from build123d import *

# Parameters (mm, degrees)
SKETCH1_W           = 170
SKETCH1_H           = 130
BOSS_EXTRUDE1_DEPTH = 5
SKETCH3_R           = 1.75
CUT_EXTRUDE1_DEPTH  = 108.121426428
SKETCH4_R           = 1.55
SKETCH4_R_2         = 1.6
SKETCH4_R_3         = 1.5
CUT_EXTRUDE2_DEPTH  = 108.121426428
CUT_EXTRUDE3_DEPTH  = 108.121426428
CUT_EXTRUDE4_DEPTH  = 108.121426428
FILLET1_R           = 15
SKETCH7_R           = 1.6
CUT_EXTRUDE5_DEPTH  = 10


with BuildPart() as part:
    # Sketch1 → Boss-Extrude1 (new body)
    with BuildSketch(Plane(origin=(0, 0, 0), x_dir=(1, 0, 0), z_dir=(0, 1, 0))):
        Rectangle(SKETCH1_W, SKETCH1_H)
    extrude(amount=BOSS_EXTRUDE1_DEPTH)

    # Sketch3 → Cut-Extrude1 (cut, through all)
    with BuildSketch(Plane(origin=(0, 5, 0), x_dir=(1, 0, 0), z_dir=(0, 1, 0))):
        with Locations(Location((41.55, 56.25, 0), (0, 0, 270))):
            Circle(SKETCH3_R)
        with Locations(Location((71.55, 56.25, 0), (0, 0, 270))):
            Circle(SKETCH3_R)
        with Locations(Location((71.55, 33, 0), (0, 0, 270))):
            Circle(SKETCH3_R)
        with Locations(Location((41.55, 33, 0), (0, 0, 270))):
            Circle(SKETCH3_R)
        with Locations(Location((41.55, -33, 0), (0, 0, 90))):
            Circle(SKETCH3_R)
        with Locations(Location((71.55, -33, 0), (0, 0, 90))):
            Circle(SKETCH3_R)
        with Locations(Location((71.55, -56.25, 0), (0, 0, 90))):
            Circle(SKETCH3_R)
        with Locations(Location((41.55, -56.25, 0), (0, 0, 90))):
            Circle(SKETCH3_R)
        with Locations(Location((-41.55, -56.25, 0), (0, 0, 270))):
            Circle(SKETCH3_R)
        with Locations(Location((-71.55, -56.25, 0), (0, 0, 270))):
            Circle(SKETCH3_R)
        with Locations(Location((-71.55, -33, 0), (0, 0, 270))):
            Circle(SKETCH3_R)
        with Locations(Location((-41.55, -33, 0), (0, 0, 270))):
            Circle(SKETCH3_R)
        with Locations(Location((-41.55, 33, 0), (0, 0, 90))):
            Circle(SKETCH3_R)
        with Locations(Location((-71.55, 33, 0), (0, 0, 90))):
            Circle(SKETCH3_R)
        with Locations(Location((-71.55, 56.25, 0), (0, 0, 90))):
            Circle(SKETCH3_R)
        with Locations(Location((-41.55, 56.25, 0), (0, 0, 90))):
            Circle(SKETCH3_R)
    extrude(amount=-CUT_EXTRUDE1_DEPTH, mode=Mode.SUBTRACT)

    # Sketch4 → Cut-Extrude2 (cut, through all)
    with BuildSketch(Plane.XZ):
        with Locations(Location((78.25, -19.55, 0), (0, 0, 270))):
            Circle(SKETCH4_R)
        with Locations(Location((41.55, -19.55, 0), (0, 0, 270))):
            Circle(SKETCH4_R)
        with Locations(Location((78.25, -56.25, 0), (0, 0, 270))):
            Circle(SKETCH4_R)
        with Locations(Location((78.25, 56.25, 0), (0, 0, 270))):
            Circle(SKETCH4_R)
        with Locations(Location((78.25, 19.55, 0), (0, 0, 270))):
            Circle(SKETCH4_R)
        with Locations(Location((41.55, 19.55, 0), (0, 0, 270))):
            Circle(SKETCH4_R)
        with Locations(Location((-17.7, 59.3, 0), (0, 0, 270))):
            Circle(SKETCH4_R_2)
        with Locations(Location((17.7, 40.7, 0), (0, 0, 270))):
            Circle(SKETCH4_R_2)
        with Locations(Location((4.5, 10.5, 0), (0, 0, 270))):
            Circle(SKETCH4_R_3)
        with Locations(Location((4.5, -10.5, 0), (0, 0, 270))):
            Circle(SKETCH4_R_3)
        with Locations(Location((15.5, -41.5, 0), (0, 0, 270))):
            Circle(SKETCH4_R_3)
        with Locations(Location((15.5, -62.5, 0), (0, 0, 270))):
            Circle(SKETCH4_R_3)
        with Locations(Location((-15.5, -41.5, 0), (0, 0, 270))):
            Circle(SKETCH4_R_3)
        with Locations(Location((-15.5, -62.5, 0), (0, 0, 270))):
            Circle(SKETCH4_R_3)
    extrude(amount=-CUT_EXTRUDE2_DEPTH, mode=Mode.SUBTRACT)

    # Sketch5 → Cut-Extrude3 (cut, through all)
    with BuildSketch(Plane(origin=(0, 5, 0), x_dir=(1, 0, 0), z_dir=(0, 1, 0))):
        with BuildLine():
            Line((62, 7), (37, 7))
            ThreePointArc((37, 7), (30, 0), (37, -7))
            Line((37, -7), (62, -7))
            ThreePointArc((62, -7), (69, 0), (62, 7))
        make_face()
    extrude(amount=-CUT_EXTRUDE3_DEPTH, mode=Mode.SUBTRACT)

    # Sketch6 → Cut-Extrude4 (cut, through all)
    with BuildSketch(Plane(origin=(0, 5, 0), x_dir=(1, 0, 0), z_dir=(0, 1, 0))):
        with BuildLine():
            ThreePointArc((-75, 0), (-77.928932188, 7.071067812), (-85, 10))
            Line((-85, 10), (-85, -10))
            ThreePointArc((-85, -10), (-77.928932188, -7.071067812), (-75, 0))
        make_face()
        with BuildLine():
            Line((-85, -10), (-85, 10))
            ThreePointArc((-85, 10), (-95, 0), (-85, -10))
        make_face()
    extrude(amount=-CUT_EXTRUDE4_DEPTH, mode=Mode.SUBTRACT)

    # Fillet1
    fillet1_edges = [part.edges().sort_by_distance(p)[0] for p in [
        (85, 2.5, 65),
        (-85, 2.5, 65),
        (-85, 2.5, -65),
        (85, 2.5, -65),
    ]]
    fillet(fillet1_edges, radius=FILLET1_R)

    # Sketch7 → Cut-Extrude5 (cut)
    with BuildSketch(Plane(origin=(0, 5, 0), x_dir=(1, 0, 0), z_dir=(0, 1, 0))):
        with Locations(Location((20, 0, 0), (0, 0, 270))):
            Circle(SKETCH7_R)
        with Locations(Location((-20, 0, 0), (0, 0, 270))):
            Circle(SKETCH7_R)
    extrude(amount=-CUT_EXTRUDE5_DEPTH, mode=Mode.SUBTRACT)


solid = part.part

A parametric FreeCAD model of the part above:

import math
import FreeCAD as App
import Part
import Sketcher
from FreeCAD import Vector


def edges_at(feature, points):
    """Names of the edges that pass closest to the given points."""
    edges = feature.Shape.Edges
    near = lambda p: min(range(len(edges)), key=lambda i: edges[i].distToShape(Part.Vertex(*p))[0])
    return sorted({f"Edge{near(p) + 1}" for p in points})


def add_polygon(sketch, points):
    """Adds a closed chain of lines whose ends are joined by coincident constraints."""
    first, n = sketch.GeometryCount, len(points)
    for a, b in zip(points, points[1:] + points[:1]):
        sketch.addGeometry(Part.LineSegment(App.Vector(*a, 0), App.Vector(*b, 0)), False)
    for i in range(n):
        sketch.addConstraint(Sketcher.Constraint("Coincident", first + i, 2, first + (i + 1) % n, 1))

doc = App.newDocument("Part")
body = doc.addObject("PartDesign::Body", "Body")

# Sketch on XZ plane
sketch1 = body.newObject("Sketcher::SketchObject", "Sketch")
sketch1.AttachmentSupport = (doc.getObject("XZ_Plane"), [""])
sketch1.MapMode = "FlatFace"
add_polygon(sketch1, [(-85, -65), (-85, 65), (85, 65), (85, -65)])  # lines 0-3
sketch1.addConstraint([
    Sketcher.Constraint("Vertical", 0),
    Sketcher.Constraint("Horizontal", 1),
    Sketcher.Constraint("Vertical", 2),
    Sketcher.Constraint("Horizontal", 3),
    Sketcher.Constraint("Symmetric", 0, 2, 2, 2, -1, 1),
    Sketcher.Constraint("DistanceX", 1, 1, 1, 2, 170.0),
    Sketcher.Constraint("DistanceY", 0, 1, 0, 2, 130.0),
])
pad1 = body.newObject("PartDesign::Pad", "Pad")
pad1.Profile = sketch1
pad1.Length = 5
pad1.Reversed = True

# Sketch on XZ plane
sketch2 = body.newObject("Sketcher::SketchObject", "Sketch001")
sketch2.AttachmentSupport = (doc.getObject("XZ_Plane"), [""])
sketch2.MapMode = "FlatFace"
sketch2.AttachmentOffset = App.Placement(Vector(0, 0, -5), App.Rotation())
sketch2.addGeometry([
    Part.Circle(Vector(41.55, -56.25, 0), Vector(0, 0, 1), 1.75),  # 0
    Part.Circle(Vector(71.55, -56.25, 0), Vector(0, 0, 1), 1.75),  # 1
    Part.Circle(Vector(71.55, -33, 0), Vector(0, 0, 1), 1.75),  # 2
    Part.Circle(Vector(41.55, -33, 0), Vector(0, 0, 1), 1.75),  # 3
    Part.Circle(Vector(41.55, 33, 0), Vector(0, 0, 1), 1.75),  # 4
    Part.Circle(Vector(71.55, 33, 0), Vector(0, 0, 1), 1.75),  # 5
    Part.Circle(Vector(71.55, 56.25, 0), Vector(0, 0, 1), 1.75),  # 6
    Part.Circle(Vector(41.55, 56.25, 0), Vector(0, 0, 1), 1.75),  # 7
    Part.Circle(Vector(-41.55, 56.25, 0), Vector(0, 0, 1), 1.75),  # 8
    Part.Circle(Vector(-71.55, 56.25, 0), Vector(0, 0, 1), 1.75),  # 9
    Part.Circle(Vector(-71.55, 33, 0), Vector(0, 0, 1), 1.75),  # 10
    Part.Circle(Vector(-41.55, 33, 0), Vector(0, 0, 1), 1.75),  # 11
    Part.Circle(Vector(-41.55, -33, 0), Vector(0, 0, 1), 1.75),  # 12
    Part.Circle(Vector(-71.55, -33, 0), Vector(0, 0, 1), 1.75),  # 13
    Part.Circle(Vector(-71.55, -56.25, 0), Vector(0, 0, 1), 1.75),  # 14
    Part.Circle(Vector(-41.55, -56.25, 0), Vector(0, 0, 1), 1.75),  # 15
], False)
sketch2.addConstraint([
    Sketcher.Constraint("Equal", 0, 1),
    Sketcher.Constraint("Equal", 1, 2),
    Sketcher.Constraint("Equal", 2, 3),
    Sketcher.Constraint("Equal", 3, 4),
    Sketcher.Constraint("Equal", 4, 5),
    Sketcher.Constraint("Equal", 5, 6),
    Sketcher.Constraint("Equal", 6, 7),
    Sketcher.Constraint("Equal", 7, 8),
    Sketcher.Constraint("Equal", 8, 9),
    Sketcher.Constraint("Equal", 9, 10),
    Sketcher.Constraint("Equal", 10, 11),
    Sketcher.Constraint("Equal", 11, 12),
    Sketcher.Constraint("Equal", 12, 13),
    Sketcher.Constraint("Equal", 13, 14),
    Sketcher.Constraint("Equal", 14, 15),
    Sketcher.Constraint("Symmetric", 0, 3, 8, 3, -1, 1),
    Sketcher.Constraint("Symmetric", 1, 3, 9, 3, -1, 1),
    Sketcher.Constraint("Symmetric", 2, 3, 10, 3, -1, 1),
    Sketcher.Constraint("Symmetric", 3, 3, 11, 3, -1, 1),
    Sketcher.Constraint("Symmetric", 4, 3, 12, 3, -1, 1),
    Sketcher.Constraint("Symmetric", 5, 3, 13, 3, -1, 1),
    Sketcher.Constraint("Symmetric", 6, 3, 14, 3, -1, 1),
    Sketcher.Constraint("Symmetric", 7, 3, 15, 3, -1, 1),
    Sketcher.Constraint("Symmetric", 7, 3, 8, 3, -2),
    Sketcher.Constraint("Symmetric", 6, 3, 9, 3, -2),
    Sketcher.Constraint("Symmetric", 5, 3, 10, 3, -2),
    Sketcher.Constraint("Symmetric", 4, 3, 11, 3, -2),
    Sketcher.Constraint("Horizontal", 0, 3, 1, 3),
    Sketcher.Constraint("Horizontal", 2, 3, 3, 3),
    Sketcher.Constraint("Vertical", 1, 3, 2, 3),
    Sketcher.Constraint("Vertical", 0, 3, 3, 3),
    Sketcher.Constraint("Diameter", 0, 3.5),
    Sketcher.Constraint("DistanceY", 2, 3, -1, 1, 33.0),
    Sketcher.Constraint("DistanceX", 0, 3, 1, 3, 30.0),
    Sketcher.Constraint("DistanceY", 1, 3, 6, 3, 112.5),
    Sketcher.Constraint("DistanceX", 8, 3, 7, 3, 83.1),
])
pocket1 = body.newObject("PartDesign::Pocket", "Pocket")
pocket1.Profile = sketch2
pocket1.Type = "ThroughAll"
pocket1.Reversed = True

# Sketch on XZ plane
sketch3 = body.newObject("Sketcher::SketchObject", "Sketch002")
sketch3.AttachmentSupport = (doc.getObject("XZ_Plane"), [""])
sketch3.MapMode = "FlatFace"
sketch3.addGeometry([
    Part.Circle(Vector(78.25, -19.55, 0), Vector(0, 0, 1), 1.55),  # 0
    Part.Circle(Vector(41.55, -19.55, 0), Vector(0, 0, 1), 1.55),  # 1
    Part.Circle(Vector(78.25, -56.25, 0), Vector(0, 0, 1), 1.55),  # 2
    Part.Circle(Vector(78.25, 56.25, 0), Vector(0, 0, 1), 1.55),  # 3
    Part.Circle(Vector(78.25, 19.55, 0), Vector(0, 0, 1), 1.55),  # 4
    Part.Circle(Vector(41.55, 19.55, 0), Vector(0, 0, 1), 1.55),  # 5
    Part.Circle(Vector(-17.7, 59.3, 0), Vector(0, 0, 1), 1.6),  # 6
    Part.Circle(Vector(17.7, 40.7, 0), Vector(0, 0, 1), 1.6),  # 7
    Part.Circle(Vector(4.5, 10.5, 0), Vector(0, 0, 1), 1.5),  # 8
    Part.Circle(Vector(4.5, -10.5, 0), Vector(0, 0, 1), 1.5),  # 9
    Part.Circle(Vector(15.5, -41.5, 0), Vector(0, 0, 1), 1.5),  # 10
    Part.Circle(Vector(15.5, -62.5, 0), Vector(0, 0, 1), 1.5),  # 11
    Part.Circle(Vector(-15.5, -41.5, 0), Vector(0, 0, 1), 1.5),  # 12
    Part.Circle(Vector(-15.5, -62.5, 0), Vector(0, 0, 1), 1.5),  # 13
], False)
sketch3.addConstraint([
    Sketcher.Constraint("Equal", 0, 1),
    Sketcher.Constraint("Equal", 1, 2),
    Sketcher.Constraint("Equal", 2, 3),
    Sketcher.Constraint("Equal", 3, 4),
    Sketcher.Constraint("Equal", 4, 5),
    Sketcher.Constraint("Equal", 6, 7),
    Sketcher.Constraint("Equal", 8, 9),
    Sketcher.Constraint("Equal", 9, 10),
    Sketcher.Constraint("Equal", 10, 11),
    Sketcher.Constraint("Equal", 11, 12),
    Sketcher.Constraint("Equal", 12, 13),
    Sketcher.Constraint("Symmetric", 10, 3, 12, 3, -2),
    Sketcher.Constraint("Symmetric", 11, 3, 13, 3, -2),
    Sketcher.Constraint("Symmetric", 2, 3, 3, 3, -1),
    Sketcher.Constraint("Symmetric", 0, 3, 4, 3, -1),
    Sketcher.Constraint("Symmetric", 1, 3, 5, 3, -1),
    Sketcher.Constraint("Symmetric", 8, 3, 9, 3, -1),
    Sketcher.Constraint("Horizontal", 0, 3, 1, 3),
    Sketcher.Constraint("Vertical", 0, 3, 2, 3),
    Sketcher.Constraint("Vertical", 10, 3, 11, 3),
    Sketcher.Constraint("Diameter", 8, 3.0),
    Sketcher.Constraint("Diameter", 0, 3.1),
    Sketcher.Constraint("Diameter", 6, 3.2),
    Sketcher.Constraint("DistanceY", 9, 3, 8, 3, 21.0),
    Sketcher.Constraint("DistanceX", 9, 3, 10, 3, 11.0),
    Sketcher.Constraint("DistanceY", 10, 3, 9, 3, 31.0),
    Sketcher.Constraint("DistanceY", 11, 3, 10, 3, 21.0),
    Sketcher.Constraint("DistanceX", 12, 3, 10, 3, 31.0),
    Sketcher.Constraint("DistanceX", 6, 3, -1, 1, 17.7),
    Sketcher.Constraint("DistanceY", -1, 1, 6, 3, 59.3),
    Sketcher.Constraint("DistanceX", -1, 1, 7, 3, 17.7),
    Sketcher.Constraint("DistanceY", -1, 1, 7, 3, 40.7),
    Sketcher.Constraint("DistanceX", 1, 3, 0, 3, 36.7),
    Sketcher.Constraint("DistanceY", 2, 3, 0, 3, 36.7),
    Sketcher.Constraint("DistanceY", 0, 3, 3, 3, 75.8),
    Sketcher.Constraint("DistanceX", -1, 1, 0, 3, 78.25),
])
pocket2 = body.newObject("PartDesign::Pocket", "Pocket001")
pocket2.Profile = sketch3
pocket2.Type = "ThroughAll"

# Sketch on XZ plane
sketch4 = body.newObject("Sketcher::SketchObject", "Sketch003")
sketch4.AttachmentSupport = (doc.getObject("XZ_Plane"), [""])
sketch4.MapMode = "FlatFace"
sketch4.AttachmentOffset = App.Placement(Vector(0, 0, -5), App.Rotation())
sketch4.addGeometry([
    Part.LineSegment(Vector(62, -7, 0), Vector(37, -7, 0)),
    Part.ArcOfCircle(Part.Circle(Vector(37, 0, 0), Vector(0, 0, 1), 7), math.radians(90), math.radians(270)),
    Part.LineSegment(Vector(37, 7, 0), Vector(62, 7, 0)),
    Part.ArcOfCircle(Part.Circle(Vector(62, 0, 0), Vector(0, 0, 1), 7), math.radians(-90), math.radians(90)),
], False)
sketch4.addConstraint([
    Sketcher.Constraint("Tangent", 0, 2, 1, 2),
    Sketcher.Constraint("Tangent", 1, 1, 2, 1),
    Sketcher.Constraint("Tangent", 2, 2, 3, 2),
    Sketcher.Constraint("Tangent", 3, 1, 0, 1),
    Sketcher.Constraint("Horizontal", 0),
    Sketcher.Constraint("Horizontal", 2),
    Sketcher.Constraint("PointOnObject", 1, 3, -1),
    Sketcher.Constraint("Radius", 1, 7.0),
    Sketcher.Constraint("DistanceX", 0, 2, 0, 1, 25.0),
    Sketcher.Constraint("DistanceX", -1, 1, 1, 3, 37.0),
])
pocket3 = body.newObject("PartDesign::Pocket", "Pocket002")
pocket3.Profile = sketch4
pocket3.Type = "ThroughAll"
pocket3.Reversed = True

# Sketch on XZ plane
sketch5 = body.newObject("Sketcher::SketchObject", "Sketch004")
sketch5.AttachmentSupport = (doc.getObject("XZ_Plane"), [""])
sketch5.MapMode = "FlatFace"
sketch5.AttachmentOffset = App.Placement(Vector(0, 0, -5), App.Rotation())
sketch5.addGeometry([
    Part.ArcOfCircle(Part.Circle(Vector(-85, 0, 0), Vector(0, 0, 1), 10), math.radians(-90), math.radians(0)),
    Part.ArcOfCircle(Part.Circle(Vector(-85, 0, 0), Vector(0, 0, 1), 10), math.radians(90), math.radians(270)),
    Part.ArcOfCircle(Part.Circle(Vector(-85, 0, 0), Vector(0, 0, 1), 10), math.radians(0), math.radians(90)),
], False)
sketch5.addConstraint([
    Sketcher.Constraint("Tangent", 0, 1, 1, 2),
    Sketcher.Constraint("Tangent", 1, 1, 2, 2),
    Sketcher.Constraint("Tangent", 2, 1, 0, 2),
    Sketcher.Constraint("Symmetric", 0, 1, 1, 1, -1),
    Sketcher.Constraint("PointOnObject", 2, 1, -1),
    Sketcher.Constraint("Vertical", 2, 3, 0, 1),
    Sketcher.Constraint("Radius", 0, 10.0),
    Sketcher.Constraint("DistanceX", 0, 3, -1, 1, 85.0),
])
pocket4 = body.newObject("PartDesign::Pocket", "Pocket003")
pocket4.Profile = sketch5
pocket4.Type = "ThroughAll"
pocket4.Reversed = True
doc.recompute()

fillet = body.newObject("PartDesign::Fillet", "Fillet")
fillet.Base = (pocket4, edges_at(pocket4, [
    (85, 2.5, 65),
    (-85, 2.5, 65),
    (-85, 2.5, -65),
    (85, 2.5, -65),
]))
fillet.Radius = 15

# Sketch on XZ plane
sketch6 = body.newObject("Sketcher::SketchObject", "Sketch005")
sketch6.AttachmentSupport = (doc.getObject("XZ_Plane"), [""])
sketch6.MapMode = "FlatFace"
sketch6.AttachmentOffset = App.Placement(Vector(0, 0, -5), App.Rotation())
sketch6.addGeometry([
    Part.Circle(Vector(20, 0, 0), Vector(0, 0, 1), 1.6),
    Part.Circle(Vector(-20, 0, 0), Vector(0, 0, 1), 1.6),
], False)
sketch6.addConstraint([
    Sketcher.Constraint("Equal", 0, 1),
    Sketcher.Constraint("Symmetric", 0, 3, 1, 3, -1, 1),
    Sketcher.Constraint("PointOnObject", 0, 3, -1),
    Sketcher.Constraint("Diameter", 0, 3.2),
    Sketcher.Constraint("DistanceX", -1, 1, 0, 3, 20.0),
])
pocket5 = body.newObject("PartDesign::Pocket", "Pocket004")
pocket5.Profile = sketch6
pocket5.Length = 10
pocket5.Reversed = True

doc.recompute()
